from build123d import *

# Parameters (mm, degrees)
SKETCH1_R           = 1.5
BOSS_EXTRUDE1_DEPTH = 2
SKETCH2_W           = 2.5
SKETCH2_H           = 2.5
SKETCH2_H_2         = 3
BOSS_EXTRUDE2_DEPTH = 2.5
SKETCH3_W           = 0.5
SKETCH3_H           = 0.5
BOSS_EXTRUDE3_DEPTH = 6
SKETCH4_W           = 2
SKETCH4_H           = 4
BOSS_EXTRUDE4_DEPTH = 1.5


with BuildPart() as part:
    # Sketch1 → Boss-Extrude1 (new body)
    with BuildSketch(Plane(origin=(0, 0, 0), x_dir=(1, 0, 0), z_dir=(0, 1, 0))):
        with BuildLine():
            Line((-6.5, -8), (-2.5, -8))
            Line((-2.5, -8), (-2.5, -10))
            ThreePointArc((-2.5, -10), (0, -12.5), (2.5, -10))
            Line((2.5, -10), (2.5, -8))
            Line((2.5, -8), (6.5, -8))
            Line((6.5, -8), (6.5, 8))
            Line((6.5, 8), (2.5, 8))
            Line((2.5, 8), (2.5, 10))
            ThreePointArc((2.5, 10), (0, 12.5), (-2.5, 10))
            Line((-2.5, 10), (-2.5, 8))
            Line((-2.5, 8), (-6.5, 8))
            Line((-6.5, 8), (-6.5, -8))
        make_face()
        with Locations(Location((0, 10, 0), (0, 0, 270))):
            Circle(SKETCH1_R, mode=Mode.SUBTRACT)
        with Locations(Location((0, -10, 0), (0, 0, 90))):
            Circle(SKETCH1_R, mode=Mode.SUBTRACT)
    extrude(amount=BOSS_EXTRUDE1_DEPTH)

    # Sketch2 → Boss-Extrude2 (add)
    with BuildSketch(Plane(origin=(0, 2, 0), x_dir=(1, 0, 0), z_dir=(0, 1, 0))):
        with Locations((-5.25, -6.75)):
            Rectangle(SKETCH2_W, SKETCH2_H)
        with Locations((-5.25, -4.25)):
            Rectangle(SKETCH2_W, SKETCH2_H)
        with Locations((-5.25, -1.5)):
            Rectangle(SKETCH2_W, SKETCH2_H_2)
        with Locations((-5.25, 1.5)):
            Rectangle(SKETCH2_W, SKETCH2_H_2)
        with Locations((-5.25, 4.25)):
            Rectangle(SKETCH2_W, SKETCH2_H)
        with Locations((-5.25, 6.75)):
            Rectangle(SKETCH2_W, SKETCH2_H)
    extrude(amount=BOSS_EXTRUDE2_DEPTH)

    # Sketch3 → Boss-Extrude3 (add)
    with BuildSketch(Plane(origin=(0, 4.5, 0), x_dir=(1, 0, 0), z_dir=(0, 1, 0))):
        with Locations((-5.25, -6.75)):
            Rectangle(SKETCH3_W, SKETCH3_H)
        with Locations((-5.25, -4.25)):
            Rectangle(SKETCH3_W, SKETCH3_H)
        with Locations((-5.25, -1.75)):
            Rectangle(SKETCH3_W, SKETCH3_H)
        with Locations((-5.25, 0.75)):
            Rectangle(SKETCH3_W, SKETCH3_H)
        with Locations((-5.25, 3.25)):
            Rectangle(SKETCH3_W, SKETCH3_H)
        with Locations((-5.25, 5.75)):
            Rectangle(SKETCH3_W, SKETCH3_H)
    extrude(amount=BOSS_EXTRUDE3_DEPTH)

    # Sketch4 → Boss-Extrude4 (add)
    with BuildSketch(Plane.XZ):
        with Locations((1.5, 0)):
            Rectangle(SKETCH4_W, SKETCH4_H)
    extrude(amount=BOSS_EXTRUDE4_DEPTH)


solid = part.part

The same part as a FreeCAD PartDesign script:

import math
import FreeCAD as App
import Part
import Sketcher
from FreeCAD import Vector
Q = App.Units.Quantity


def add_polygon(sketch, points):
    """Adds a closed chain of lines whose ends are joined by coincident constraints."""
    first, n = sketch.GeometryCount, len(points)
    for a, b in zip(points, points[1:] + points[:1]):
        sketch.addGeometry(Part.LineSegment(App.Vector(*a, 0), App.Vector(*b, 0)), False)
    for i in range(n):
        sketch.addConstraint(Sketcher.Constraint("Coincident", first + i, 2, first + (i + 1) % n, 1))

doc = App.newDocument("Part")
body = doc.addObject("PartDesign::Body", "Body")

# Sketch on XZ plane
sketch1 = body.newObject("Sketcher::SketchObject", "Sketch")
sketch1.AttachmentSupport = (doc.getObject("XZ_Plane"), [""])
sketch1.MapMode = "FlatFace"
sketch1.addGeometry([
    Part.LineSegment(Vector(-6.5, 8, 0), Vector(-2.5, 8, 0)),  # 0
    Part.LineSegment(Vector(-2.5, 8, 0), Vector(-2.5, 10, 0)),  # 1
    Part.ArcOfCircle(Part.Circle(Vector(0, 10, 0), Vector(0, 0, 1), 2.5), math.radians(0), math.radians(180)),  # 2
    Part.LineSegment(Vector(2.5, 10, 0), Vector(2.5, 8, 0)),  # 3
    Part.LineSegment(Vector(2.5, 8, 0), Vector(6.5, 8, 0)),  # 4
    Part.LineSegment(Vector(6.5, 8, 0), Vector(6.5, -8, 0)),  # 5
    Part.LineSegment(Vector(6.5, -8, 0), Vector(2.5, -8, 0)),  # 6
    Part.LineSegment(Vector(2.5, -8, 0), Vector(2.5, -10, 0)),  # 7
    Part.ArcOfCircle(Part.Circle(Vector(0, -10, 0), Vector(0, 0, 1), 2.5), math.radians(180), math.radians(360)),  # 8
    Part.LineSegment(Vector(-2.5, -10, 0), Vector(-2.5, -8, 0)),  # 9
    Part.LineSegment(Vector(-2.5, -8, 0), Vector(-6.5, -8, 0)),  # 10
    Part.LineSegment(Vector(-6.5, -8, 0), Vector(-6.5, 8, 0)),  # 11
    Part.Circle(Vector(0, 10, 0), Vector(0, 0, 1), 1.5),  # 12
    Part.Circle(Vector(0, -10, 0), Vector(0, 0, 1), 1.5),  # 13
], False)
sketch1.addConstraint([
    Sketcher.Constraint("Coincident", 0, 2, 1, 1),
    Sketcher.Constraint("Tangent", 1, 2, 2, 2),
    Sketcher.Constraint("Tangent", 2, 1, 3, 1),
    Sketcher.Constraint("Coincident", 3, 2, 4, 1),
    Sketcher.Constraint("Coincident", 4, 2, 5, 1),
    Sketcher.Constraint("Coincident", 5, 2, 6, 1),
    Sketcher.Constraint("Coincident", 6, 2, 7, 1),
    Sketcher.Constraint("Tangent", 7, 2, 8, 2),
    Sketcher.Constraint("Tangent", 8, 1, 9, 1),
    Sketcher.Constraint("Coincident", 9, 2, 10, 1),
    Sketcher.Constraint("Coincident", 10, 2, 11, 1),
    Sketcher.Constraint("Coincident", 11, 2, 0, 1),
    Sketcher.Constraint("Horizontal", 0),
    Sketcher.Constraint("Vertical", 1),
    Sketcher.Constraint("Vertical", 3),
    Sketcher.Constraint("Horizontal", 4),
    Sketcher.Constraint("Vertical", 5),
    Sketcher.Constraint("Horizontal", 6),
    Sketcher.Constraint("Vertical", 7),
    Sketcher.Constraint("Vertical", 9),
    Sketcher.Constraint("Horizontal", 10),
    Sketcher.Constraint("Vertical", 11),
    Sketcher.Constraint("Coincident", 12, 3, 2, 3),
    Sketcher.Constraint("Coincident", 13, 3, 8, 3),
    Sketcher.Constraint("Equal", 2, 8),
    Sketcher.Constraint("Equal", 12, 13),
    Sketcher.Constraint("Symmetric", 2, 3, 8, 3, -1, 1),
    Sketcher.Constraint("Symmetric", 4, 2, 10, 2, -1, 1),
    Sketcher.Constraint("Symmetric", 0, 2, 3, 2, -2),
    Sketcher.Constraint("Horizontal", 6, 2, 9, 2),
    Sketcher.Constraint("Diameter", 12, Q("3 mm")),
    Sketcher.Constraint("Radius", 2, Q("2.5 mm")),
    Sketcher.Constraint("DistanceX", 0, 1, 0, 2, Q("4 mm")),
    Sketcher.Constraint("DistanceY", 1, 1, 1, 2, Q("2 mm")),
    Sketcher.Constraint("DistanceY", 5, 2, 5, 1, Q("16 mm")),
])
pad1 = body.newObject("PartDesign::Pad", "Pad")
pad1.Profile = sketch1
pad1.Length = 2
pad1.Reversed = True

# Sketch on XZ plane
sketch2 = body.newObject("Sketcher::SketchObject", "Sketch001")
sketch2.AttachmentSupport = (doc.getObject("XZ_Plane"), [""])
sketch2.MapMode = "FlatFace"
sketch2.AttachmentOffset = App.Placement(Vector(0, 0, -2), App.Rotation())
add_polygon(sketch2, [(-6.5, 8), (-4, 8), (-4, -8), (-6.5, -8)])  # lines 0-3
sketch2.addConstraint([
    Sketcher.Constraint("Horizontal", 0),
    Sketcher.Constraint("Vertical", 1),
    Sketcher.Constraint("Horizontal", 2),
    Sketcher.Constraint("Vertical", 3),
    Sketcher.Constraint("DistanceY", 1, 2, 1, 1, Q("16 mm")),
    Sketcher.Constraint("DistanceX", 0, 1, 0, 2, Q("2.5 mm")),
    Sketcher.Constraint("DistanceX", 0, 2, -1, 1, Q("4 mm")),
    Sketcher.Constraint("DistanceY", -1, 1, 0, 2, Q("8 mm")),
])
pad2 = body.newObject("PartDesign::Pad", "Pad001")
pad2.Profile = sketch2
pad2.Length = 2.5
pad2.Reversed = True

# Sketch on XZ plane
sketch3 = body.newObject("Sketcher::SketchObject", "Sketch002")
sketch3.AttachmentSupport = (doc.getObject("XZ_Plane"), [""])
sketch3.MapMode = "FlatFace"
sketch3.AttachmentOffset = App.Placement(Vector(0, 0, -4.5), App.Rotation())
add_polygon(sketch3, [(-5.5, 6.5), (-5.5, 7), (-5, 7), (-5, 6.5)])  # lines 0-3
add_polygon(sketch3, [(-5.5, 4), (-5.5, 4.5), (-5, 4.5), (-5, 4)])  # lines 4-7
add_polygon(sketch3, [(-5.5, 1.5), (-5.5, 2), (-5, 2), (-5, 1.5)])  # lines 8-11
add_polygon(sketch3, [(-5.5, -1), (-5.5, -0.5), (-5, -0.5), (-5, -1)])  # lines 12-15
add_polygon(sketch3, [(-5.5, -3.5), (-5.5, -3), (-5, -3), (-5, -3.5)])  # lines 16-19
add_polygon(sketch3, [(-5.5, -6), (-5.5, -5.5), (-5, -5.5), (-5, -6)])  # lines 20-23
sketch3.addConstraint([
    Sketcher.Constraint("Vertical", 0),
    Sketcher.Constraint("Horizontal", 1),
    Sketcher.Constraint("Vertical", 2),
    Sketcher.Constraint("Horizontal", 3),
    Sketcher.Constraint("Vertical", 4),
    Sketcher.Constraint("Horizontal", 5),
    Sketcher.Constraint("Vertical", 6),
    Sketcher.Constraint("Horizontal", 7),
    Sketcher.Constraint("Vertical", 8),
    Sketcher.Constraint("Horizontal", 9),
    Sketcher.Constraint("Vertical", 10),
    Sketcher.Constraint("Horizontal", 11),
    Sketcher.Constraint("Vertical", 12),
    Sketcher.Constraint("Horizontal", 13),
    Sketcher.Constraint("Vertical", 14),
    Sketcher.Constraint("Horizontal", 15),
    Sketcher.Constraint("Vertical", 16),
    Sketcher.Constraint("Horizontal", 17),
    Sketcher.Constraint("Vertical", 18),
    Sketcher.Constraint("Horizontal", 19),
    Sketcher.Constraint("Vertical", 20),
    Sketcher.Constraint("Horizontal", 21),
    Sketcher.Constraint("Vertical", 22),
    Sketcher.Constraint("Horizontal", 23),
    Sketcher.Constraint("Vertical", 3, 2, 4, 2),
    Sketcher.Constraint("Vertical", 2, 2, 5, 2),
    Sketcher.Constraint("Vertical", 7, 2, 8, 2),
    Sketcher.Constraint("Vertical", 6, 2, 9, 2),
    Sketcher.Constraint("Vertical", 11, 2, 12, 2),
    Sketcher.Constraint("Vertical", 10, 2, 13, 2),
    Sketcher.Constraint("Vertical", 15, 2, 16, 2),
    Sketcher.Constraint("Vertical", 14, 2, 17, 2),
    Sketcher.Constraint("Vertical", 19, 2, 20, 2),
    Sketcher.Constraint("Vertical", 18, 2, 21, 2),
    Sketcher.Constraint("Equal", 23, 0),
    Sketcher.Constraint("Equal", 2, 4),
    Sketcher.Constraint("Equal", 6, 8),
    Sketcher.Constraint("Equal", 10, 12),
    Sketcher.Constraint("Equal", 14, 16),
    Sketcher.Constraint("Equal", 18, 20),
    Sketcher.Constraint("DistanceX", 1, 1, 1, 2, Q("0.5 mm")),
    Sketcher.Constraint("DistanceY", -1, 1, 0, 2, Q("7 mm")),
    Sketcher.Constraint("DistanceX", 1, 2, -1, 1, Q("5 mm")),
    Sketcher.Constraint("DistanceY", -1, 1, 6, 2, Q("4 mm")),
    Sketcher.Constraint("DistanceY", -1, 1, 8, 2, Q("2 mm")),
    Sketcher.Constraint("DistanceY", 14, 2, -1, 1, Q("1 mm")),
    Sketcher.Constraint("DistanceY", 16, 2, -1, 1, Q("3 mm")),
    Sketcher.Constraint("DistanceY", 22, 2, -1, 1, Q("6 mm")),
])
pad3 = body.newObject("PartDesign::Pad", "Pad002")
pad3.Profile = sketch3
pad3.Length = 6
pad3.Reversed = True

# Sketch on XZ plane
sketch4 = body.newObject("Sketcher::SketchObject", "Sketch003")
sketch4.AttachmentSupport = (doc.getObject("XZ_Plane"), [""])
sketch4.MapMode = "FlatFace"
add_polygon(sketch4, [(0.5, 2), (0.5, -2), (2.5, -2), (2.5, 2)])  # lines 0-3
sketch4.addConstraint([
    Sketcher.Constraint("Vertical", 0),
    Sketcher.Constraint("Horizontal", 1),
    Sketcher.Constraint("Vertical", 2),
    Sketcher.Constraint("Horizontal", 3),
    Sketcher.Constraint("DistanceX", 1, 1, 1, 2, Q("2 mm")),
    Sketcher.Constraint("DistanceY", 0, 2, 0, 1, Q("4 mm")),
    Sketcher.Constraint("DistanceY", 0, 2, -1, 1, Q("2 mm")),
    Sketcher.Constraint("DistanceX", -1, 1, 0, 2, Q("0.5 mm")),
])
pad4 = body.newObject("PartDesign::Pad", "Pad003")
pad4.Profile = sketch4
pad4.Length = 1.5

doc.recompute()
